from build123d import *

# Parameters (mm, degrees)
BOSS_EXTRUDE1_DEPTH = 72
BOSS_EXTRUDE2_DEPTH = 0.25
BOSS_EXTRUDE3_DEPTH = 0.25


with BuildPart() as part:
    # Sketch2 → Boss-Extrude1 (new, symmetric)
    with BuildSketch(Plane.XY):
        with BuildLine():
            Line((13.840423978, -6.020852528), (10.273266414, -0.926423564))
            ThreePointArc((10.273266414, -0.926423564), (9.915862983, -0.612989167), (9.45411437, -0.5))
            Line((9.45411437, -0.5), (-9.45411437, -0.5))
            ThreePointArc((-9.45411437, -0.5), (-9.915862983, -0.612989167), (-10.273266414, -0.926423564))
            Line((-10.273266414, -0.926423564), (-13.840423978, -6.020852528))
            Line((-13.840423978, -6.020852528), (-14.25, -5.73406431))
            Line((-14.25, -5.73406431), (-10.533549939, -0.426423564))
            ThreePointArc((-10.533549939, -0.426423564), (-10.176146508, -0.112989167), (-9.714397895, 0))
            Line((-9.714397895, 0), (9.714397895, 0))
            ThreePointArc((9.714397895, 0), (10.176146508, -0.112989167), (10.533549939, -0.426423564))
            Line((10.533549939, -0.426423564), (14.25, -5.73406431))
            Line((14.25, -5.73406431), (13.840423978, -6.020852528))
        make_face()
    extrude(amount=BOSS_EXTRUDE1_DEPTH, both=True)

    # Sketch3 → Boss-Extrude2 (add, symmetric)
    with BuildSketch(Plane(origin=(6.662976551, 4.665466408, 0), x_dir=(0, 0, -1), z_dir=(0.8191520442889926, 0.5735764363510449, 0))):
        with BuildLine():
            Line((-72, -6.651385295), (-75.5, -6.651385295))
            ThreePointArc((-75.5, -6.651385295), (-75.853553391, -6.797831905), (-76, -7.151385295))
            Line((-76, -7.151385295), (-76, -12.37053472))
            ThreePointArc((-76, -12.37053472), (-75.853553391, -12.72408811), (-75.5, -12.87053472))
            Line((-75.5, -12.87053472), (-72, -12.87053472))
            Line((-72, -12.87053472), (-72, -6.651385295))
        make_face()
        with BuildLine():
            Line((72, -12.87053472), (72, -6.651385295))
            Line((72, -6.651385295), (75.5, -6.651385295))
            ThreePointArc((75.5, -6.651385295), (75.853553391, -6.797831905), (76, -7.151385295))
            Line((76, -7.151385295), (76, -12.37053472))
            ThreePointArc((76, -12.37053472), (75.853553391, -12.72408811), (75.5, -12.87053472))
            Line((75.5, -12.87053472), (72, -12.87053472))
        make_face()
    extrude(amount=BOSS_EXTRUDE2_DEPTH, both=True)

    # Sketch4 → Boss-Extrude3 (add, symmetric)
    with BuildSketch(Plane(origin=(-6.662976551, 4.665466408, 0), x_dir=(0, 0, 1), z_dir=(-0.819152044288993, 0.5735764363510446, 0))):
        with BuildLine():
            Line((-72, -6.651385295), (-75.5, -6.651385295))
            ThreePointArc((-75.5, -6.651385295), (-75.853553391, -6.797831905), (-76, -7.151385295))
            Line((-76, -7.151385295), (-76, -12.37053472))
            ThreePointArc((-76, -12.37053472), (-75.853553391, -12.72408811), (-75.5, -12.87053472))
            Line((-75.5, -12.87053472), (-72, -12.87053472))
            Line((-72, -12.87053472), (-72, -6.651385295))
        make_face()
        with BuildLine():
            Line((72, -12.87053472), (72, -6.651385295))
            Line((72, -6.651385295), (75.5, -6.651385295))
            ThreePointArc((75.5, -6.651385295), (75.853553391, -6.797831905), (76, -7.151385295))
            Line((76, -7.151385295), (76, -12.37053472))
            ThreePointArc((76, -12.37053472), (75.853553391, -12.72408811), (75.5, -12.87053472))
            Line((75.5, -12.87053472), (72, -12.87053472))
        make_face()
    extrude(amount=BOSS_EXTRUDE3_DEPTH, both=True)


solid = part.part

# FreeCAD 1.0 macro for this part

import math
import FreeCAD as App
import Part
import Sketcher

V = App.Vector
Q = App.Units.Quantity

doc = App.newDocument("Part")
body = doc.addObject("PartDesign::Body", "Body")

sketch1 = body.newObject("Sketcher::SketchObject", "Sketch")
sketch1.AttachmentSupport = (doc.getObject("XY_Plane"), [""])
sketch1.MapMode = "FlatFace"
sketch1.addGeometry(Part.LineSegment(V(10.273266, -0.926424, 0), V(13.840424, -6.020853, 0)), False)
sketch1.addGeometry(Part.LineSegment(V(13.840424, -6.020853, 0), V(14.25, -5.734064, 0)), False)
sketch1.addGeometry(Part.LineSegment(V(14.25, -5.734064, 0), V(10.53355, -0.426424, 0)), False)
sketch1.addGeometry(Part.ArcOfCircle(Part.Circle(V(9.714398, -1, 0), V(0, 0, 1), 1), math.radians(35), math.radians(90)), False)
sketch1.addGeometry(Part.LineSegment(V(9.714398, 0, 0), V(-9.714398, 0, 0)), False)
sketch1.addGeometry(Part.ArcOfCircle(Part.Circle(V(-9.714398, -1, 0), V(0, 0, 1), 1), math.radians(90), math.radians(145)), False)
sketch1.addGeometry(Part.LineSegment(V(-10.53355, -0.426424, 0), V(-14.25, -5.734064, 0)), False)
sketch1.addGeometry(Part.LineSegment(V(-14.25, -5.734064, 0), V(-13.840424, -6.020853, 0)), False)
sketch1.addGeometry(Part.LineSegment(V(-13.840424, -6.020853, 0), V(-10.273266, -0.926424, 0)), False)
sketch1.addGeometry(Part.ArcOfCircle(Part.Circle(V(-9.454114, -1.5, 0), V(0, 0, 1), 1), math.radians(90), math.radians(145)), False)
sketch1.addGeometry(Part.LineSegment(V(-9.454114, -0.5, 0), V(9.454114, -0.5, 0)), False)
sketch1.addGeometry(Part.ArcOfCircle(Part.Circle(V(9.454114, -1.5, 0), V(0, 0, 1), 1), math.radians(35), math.radians(90)), False)
sketch1.addConstraint(Sketcher.Constraint("Coincident", 0, 2, 1, 1))
sketch1.addConstraint(Sketcher.Constraint("Coincident", 1, 2, 2, 1))
sketch1.addConstraint(Sketcher.Constraint("Tangent", 2, 2, 3, 1))
sketch1.addConstraint(Sketcher.Constraint("Tangent", 3, 2, 4, 1))
sketch1.addConstraint(Sketcher.Constraint("Tangent", 4, 2, 5, 1))
sketch1.addConstraint(Sketcher.Constraint("Tangent", 5, 2, 6, 1))
sketch1.addConstraint(Sketcher.Constraint("Coincident", 6, 2, 7, 1))
sketch1.addConstraint(Sketcher.Constraint("Coincident", 7, 2, 8, 1))
sketch1.addConstraint(Sketcher.Constraint("Tangent", 8, 2, 9, 2))
sketch1.addConstraint(Sketcher.Constraint("Tangent", 9, 1, 10, 1))
sketch1.addConstraint(Sketcher.Constraint("Tangent", 10, 2, 11, 2))
sketch1.addConstraint(Sketcher.Constraint("Tangent", 11, 1, 0, 1))
sketch1.addConstraint(Sketcher.Constraint("Horizontal", 4))
sketch1.addConstraint(Sketcher.Constraint("Horizontal", 10))
sketch1.addConstraint(Sketcher.Constraint("Equal", 3, 5))
sketch1.addConstraint(Sketcher.Constraint("Equal", 5, 9))
sketch1.addConstraint(Sketcher.Constraint("Equal", 9, 11))
sketch1.addConstraint(Sketcher.Constraint("Symmetric", 3, 2, 4, 2, -1, 1))
sketch1.addConstraint(Sketcher.Constraint("Symmetric", 1, 2, 6, 2, -2))
sketch1.addConstraint(Sketcher.Constraint("Symmetric", 0, 2, 7, 2, -2))
sketch1.addConstraint(Sketcher.Constraint("Perpendicular", 0, 1))
sketch1.addConstraint(Sketcher.Constraint("Perpendicular", 1, 2))
sketch1.addConstraint(Sketcher.Constraint("Perpendicular", 7, 8))
sketch1.addConstraint(Sketcher.Constraint("Radius", 3, Q("1 mm")))
sketch1.addConstraint(Sketcher.Constraint("Angle", 0, Q("-55 deg")))
sketch1.addConstraint(Sketcher.Constraint("Distance", 1, Q("0.5 mm")))
sketch1.addConstraint(Sketcher.Constraint("DistanceY", 9, 3, -1, 1, Q("1.5 mm")))
sketch1.addConstraint(Sketcher.Constraint("DistanceX", -1, 1, 1, 2, Q("14.25 mm")))
sketch1.addConstraint(Sketcher.Constraint("DistanceX", 10, 1, 10, 2, Q("18.908229 mm")))
pad1 = body.newObject("PartDesign::Pad", "Pad")
pad1.Profile = sketch1
pad1.Length = 144
pad1.Midplane = True

sketch2 = body.newObject("Sketcher::SketchObject", "Sketch001")
sketch2.Placement = App.Placement(V(6.662977, 4.665466, 0), App.Rotation(V(0, 0, -1), V(-0.573576436, 0.819152044, 0), V(0.819152044, 0.573576436, 0), "ZXY"))
sketch2.addGeometry(Part.LineSegment(V(-72, -6.651385, 0), V(-75.5, -6.651385, 0)), False)
sketch2.addGeometry(Part.ArcOfCircle(Part.Circle(V(-75.5, -7.151385, 0), V(0, 0, 1), 0.5), math.radians(90), math.radians(180)), False)
sketch2.addGeometry(Part.LineSegment(V(-76, -7.151385, 0), V(-76, -12.370535, 0)), False)
sketch2.addGeometry(Part.ArcOfCircle(Part.Circle(V(-75.5, -12.370535, 0), V(0, 0, 1), 0.5), math.radians(180), math.radians(270)), False)
sketch2.addGeometry(Part.LineSegment(V(-75.5, -12.870535, 0), V(-72, -12.870535, 0)), False)
sketch2.addGeometry(Part.LineSegment(V(-72, -12.870535, 0), V(-72, -6.651385, 0)), False)
sketch2.addGeometry(Part.LineSegment(V(72, -6.651385, 0), V(72, -12.870535, 0)), False)
sketch2.addGeometry(Part.LineSegment(V(72, -12.870535, 0), V(75.5, -12.870535, 0)), False)
sketch2.addGeometry(Part.ArcOfCircle(Part.Circle(V(75.5, -12.370535, 0), V(0, 0, 1), 0.5), math.radians(-90), math.radians(0)), False)
sketch2.addGeometry(Part.LineSegment(V(76, -12.370535, 0), V(76, -7.151385, 0)), False)
sketch2.addGeometry(Part.ArcOfCircle(Part.Circle(V(75.5, -7.151385, 0), V(0, 0, 1), 0.5), math.radians(0), math.radians(90)), False)
sketch2.addGeometry(Part.LineSegment(V(75.5, -6.651385, 0), V(72, -6.651385, 0)), False)
sketch2.addConstraint(Sketcher.Constraint("Tangent", 0, 2, 1, 1))
sketch2.addConstraint(Sketcher.Constraint("Tangent", 1, 2, 2, 1))
sketch2.addConstraint(Sketcher.Constraint("Tangent", 2, 2, 3, 1))
sketch2.addConstraint(Sketcher.Constraint("Tangent", 3, 2, 4, 1))
sketch2.addConstraint(Sketcher.Constraint("Coincident", 4, 2, 5, 1))
sketch2.addConstraint(Sketcher.Constraint("Coincident", 5, 2, 0, 1))
sketch2.addConstraint(Sketcher.Constraint("Coincident", 6, 2, 7, 1))
sketch2.addConstraint(Sketcher.Constraint("Tangent", 7, 2, 8, 1))
sketch2.addConstraint(Sketcher.Constraint("Tangent", 8, 2, 9, 1))
sketch2.addConstraint(Sketcher.Constraint("Tangent", 9, 2, 10, 1))
sketch2.addConstraint(Sketcher.Constraint("Tangent", 10, 2, 11, 1))
sketch2.addConstraint(Sketcher.Constraint("Coincident", 11, 2, 6, 1))
sketch2.addConstraint(Sketcher.Constraint("Horizontal", 0))
sketch2.addConstraint(Sketcher.Constraint("Vertical", 2))
sketch2.addConstraint(Sketcher.Constraint("Horizontal", 4))
sketch2.addConstraint(Sketcher.Constraint("Vertical", 5))
sketch2.addConstraint(Sketcher.Constraint("Vertical", 6))
sketch2.addConstraint(Sketcher.Constraint("Horizontal", 7))
sketch2.addConstraint(Sketcher.Constraint("Vertical", 9))
sketch2.addConstraint(Sketcher.Constraint("Horizontal", 11))
sketch2.addConstraint(Sketcher.Constraint("Equal", 1, 3))
sketch2.addConstraint(Sketcher.Constraint("Equal", 3, 8))
sketch2.addConstraint(Sketcher.Constraint("Equal", 8, 10))
sketch2.addConstraint(Sketcher.Constraint("Symmetric", 3, 3, 8, 3, -2))
sketch2.addConstraint(Sketcher.Constraint("Symmetric", 5, 2, 11, 2, -2))
sketch2.addConstraint(Sketcher.Constraint("Radius", 1, Q("0.5 mm")))
sketch2.addConstraint(Sketcher.Constraint("DistanceX", 0, 2, 0, 1, Q("3.5 mm")))
sketch2.addConstraint(Sketcher.Constraint("DistanceX", 1, 2, -1, 1, Q("76 mm")))
sketch2.addConstraint(Sketcher.Constraint("DistanceY", 2, 2, 2, 1, Q("5.219149 mm")))
sketch2.addConstraint(Sketcher.Constraint("DistanceY", 1, 3, -1, 1, Q("7.151385 mm")))
pad2 = body.newObject("PartDesign::Pad", "Pad001")
pad2.Profile = sketch2
pad2.Length = 0.5
pad2.Midplane = True

sketch3 = body.newObject("Sketcher::SketchObject", "Sketch002")
sketch3.Placement = App.Placement(V(-6.662977, 4.665466, 0), App.Rotation(V(0, 0, 1), V(0.573576436, 0.819152044, 0), V(-0.819152044, 0.573576436, 0), "ZXY"))
sketch3.addGeometry(Part.LineSegment(V(-72, -6.651385, 0), V(-75.5, -6.651385, 0)), False)
sketch3.addGeometry(Part.ArcOfCircle(Part.Circle(V(-75.5, -7.151385, 0), V(0, 0, 1), 0.5), math.radians(90), math.radians(180)), False)
sketch3.addGeometry(Part.LineSegment(V(-76, -7.151385, 0), V(-76, -12.370535, 0)), False)
sketch3.addGeometry(Part.ArcOfCircle(Part.Circle(V(-75.5, -12.370535, 0), V(0, 0, 1), 0.5), math.radians(180), math.radians(270)), False)
sketch3.addGeometry(Part.LineSegment(V(-75.5, -12.870535, 0), V(-72, -12.870535, 0)), False)
sketch3.addGeometry(Part.LineSegment(V(-72, -12.870535, 0), V(-72, -6.651385, 0)), False)
sketch3.addGeometry(Part.LineSegment(V(72, -6.651385, 0), V(72, -12.870535, 0)), False)
sketch3.addGeometry(Part.LineSegment(V(72, -12.870535, 0), V(75.5, -12.870535, 0)), False)
sketch3.addGeometry(Part.ArcOfCircle(Part.Circle(V(75.5, -12.370535, 0), V(0, 0, 1), 0.5), math.radians(-90), math.radians(0)), False)
sketch3.addGeometry(Part.LineSegment(V(76, -12.370535, 0), V(76, -7.151385, 0)), False)
sketch3.addGeometry(Part.ArcOfCircle(Part.Circle(V(75.5, -7.151385, 0), V(0, 0, 1), 0.5), math.radians(0), math.radians(90)), False)
sketch3.addGeometry(Part.LineSegment(V(75.5, -6.651385, 0), V(72, -6.651385, 0)), False)
sketch3.addConstraint(Sketcher.Constraint("Tangent", 0, 2, 1, 1))
sketch3.addConstraint(Sketcher.Constraint("Tangent", 1, 2, 2, 1))
sketch3.addConstraint(Sketcher.Constraint("Tangent", 2, 2, 3, 1))
sketch3.addConstraint(Sketcher.Constraint("Tangent", 3, 2, 4, 1))
sketch3.addConstraint(Sketcher.Constraint("Coincident", 4, 2, 5, 1))
sketch3.addConstraint(Sketcher.Constraint("Coincident", 5, 2, 0, 1))
sketch3.addConstraint(Sketcher.Constraint("Coincident", 6, 2, 7, 1))
sketch3.addConstraint(Sketcher.Constraint("Tangent", 7, 2, 8, 1))
sketch3.addConstraint(Sketcher.Constraint("Tangent", 8, 2, 9, 1))
sketch3.addConstraint(Sketcher.Constraint("Tangent", 9, 2, 10, 1))
sketch3.addConstraint(Sketcher.Constraint("Tangent", 10, 2, 11, 1))
sketch3.addConstraint(Sketcher.Constraint("Coincident", 11, 2, 6, 1))
sketch3.addConstraint(Sketcher.Constraint("Horizontal", 0))
sketch3.addConstraint(Sketcher.Constraint("Vertical", 2))
sketch3.addConstraint(Sketcher.Constraint("Horizontal", 4))
sketch3.addConstraint(Sketcher.Constraint("Vertical", 5))
sketch3.addConstraint(Sketcher.Constraint("Vertical", 6))
sketch3.addConstraint(Sketcher.Constraint("Horizontal", 7))
sketch3.addConstraint(Sketcher.Constraint("Vertical", 9))
sketch3.addConstraint(Sketcher.Constraint("Horizontal", 11))
sketch3.addConstraint(Sketcher.Constraint("Equal", 1, 3))
sketch3.addConstraint(Sketcher.Constraint("Equal", 3, 8))
sketch3.addConstraint(Sketcher.Constraint("Equal", 8, 10))
sketch3.addConstraint(Sketcher.Constraint("Symmetric", 3, 3, 8, 3, -2))
sketch3.addConstraint(Sketcher.Constraint("Symmetric", 5, 2, 11, 2, -2))
sketch3.addConstraint(Sketcher.Constraint("Radius", 1, Q("0.5 mm")))
sketch3.addConstraint(Sketcher.Constraint("DistanceX", 0, 2, 0, 1, Q("3.5 mm")))
sketch3.addConstraint(Sketcher.Constraint("DistanceX", 1, 2, -1, 1, Q("76 mm")))
sketch3.addConstraint(Sketcher.Constraint("DistanceY", 2, 2, 2, 1, Q("5.219149 mm")))
sketch3.addConstraint(Sketcher.Constraint("DistanceY", 1, 3, -1, 1, Q("7.151385 mm")))
pad3 = body.newObject("PartDesign::Pad", "Pad002")
pad3.Profile = sketch3
pad3.Length = 0.5
pad3.Midplane = True

doc.recompute()
